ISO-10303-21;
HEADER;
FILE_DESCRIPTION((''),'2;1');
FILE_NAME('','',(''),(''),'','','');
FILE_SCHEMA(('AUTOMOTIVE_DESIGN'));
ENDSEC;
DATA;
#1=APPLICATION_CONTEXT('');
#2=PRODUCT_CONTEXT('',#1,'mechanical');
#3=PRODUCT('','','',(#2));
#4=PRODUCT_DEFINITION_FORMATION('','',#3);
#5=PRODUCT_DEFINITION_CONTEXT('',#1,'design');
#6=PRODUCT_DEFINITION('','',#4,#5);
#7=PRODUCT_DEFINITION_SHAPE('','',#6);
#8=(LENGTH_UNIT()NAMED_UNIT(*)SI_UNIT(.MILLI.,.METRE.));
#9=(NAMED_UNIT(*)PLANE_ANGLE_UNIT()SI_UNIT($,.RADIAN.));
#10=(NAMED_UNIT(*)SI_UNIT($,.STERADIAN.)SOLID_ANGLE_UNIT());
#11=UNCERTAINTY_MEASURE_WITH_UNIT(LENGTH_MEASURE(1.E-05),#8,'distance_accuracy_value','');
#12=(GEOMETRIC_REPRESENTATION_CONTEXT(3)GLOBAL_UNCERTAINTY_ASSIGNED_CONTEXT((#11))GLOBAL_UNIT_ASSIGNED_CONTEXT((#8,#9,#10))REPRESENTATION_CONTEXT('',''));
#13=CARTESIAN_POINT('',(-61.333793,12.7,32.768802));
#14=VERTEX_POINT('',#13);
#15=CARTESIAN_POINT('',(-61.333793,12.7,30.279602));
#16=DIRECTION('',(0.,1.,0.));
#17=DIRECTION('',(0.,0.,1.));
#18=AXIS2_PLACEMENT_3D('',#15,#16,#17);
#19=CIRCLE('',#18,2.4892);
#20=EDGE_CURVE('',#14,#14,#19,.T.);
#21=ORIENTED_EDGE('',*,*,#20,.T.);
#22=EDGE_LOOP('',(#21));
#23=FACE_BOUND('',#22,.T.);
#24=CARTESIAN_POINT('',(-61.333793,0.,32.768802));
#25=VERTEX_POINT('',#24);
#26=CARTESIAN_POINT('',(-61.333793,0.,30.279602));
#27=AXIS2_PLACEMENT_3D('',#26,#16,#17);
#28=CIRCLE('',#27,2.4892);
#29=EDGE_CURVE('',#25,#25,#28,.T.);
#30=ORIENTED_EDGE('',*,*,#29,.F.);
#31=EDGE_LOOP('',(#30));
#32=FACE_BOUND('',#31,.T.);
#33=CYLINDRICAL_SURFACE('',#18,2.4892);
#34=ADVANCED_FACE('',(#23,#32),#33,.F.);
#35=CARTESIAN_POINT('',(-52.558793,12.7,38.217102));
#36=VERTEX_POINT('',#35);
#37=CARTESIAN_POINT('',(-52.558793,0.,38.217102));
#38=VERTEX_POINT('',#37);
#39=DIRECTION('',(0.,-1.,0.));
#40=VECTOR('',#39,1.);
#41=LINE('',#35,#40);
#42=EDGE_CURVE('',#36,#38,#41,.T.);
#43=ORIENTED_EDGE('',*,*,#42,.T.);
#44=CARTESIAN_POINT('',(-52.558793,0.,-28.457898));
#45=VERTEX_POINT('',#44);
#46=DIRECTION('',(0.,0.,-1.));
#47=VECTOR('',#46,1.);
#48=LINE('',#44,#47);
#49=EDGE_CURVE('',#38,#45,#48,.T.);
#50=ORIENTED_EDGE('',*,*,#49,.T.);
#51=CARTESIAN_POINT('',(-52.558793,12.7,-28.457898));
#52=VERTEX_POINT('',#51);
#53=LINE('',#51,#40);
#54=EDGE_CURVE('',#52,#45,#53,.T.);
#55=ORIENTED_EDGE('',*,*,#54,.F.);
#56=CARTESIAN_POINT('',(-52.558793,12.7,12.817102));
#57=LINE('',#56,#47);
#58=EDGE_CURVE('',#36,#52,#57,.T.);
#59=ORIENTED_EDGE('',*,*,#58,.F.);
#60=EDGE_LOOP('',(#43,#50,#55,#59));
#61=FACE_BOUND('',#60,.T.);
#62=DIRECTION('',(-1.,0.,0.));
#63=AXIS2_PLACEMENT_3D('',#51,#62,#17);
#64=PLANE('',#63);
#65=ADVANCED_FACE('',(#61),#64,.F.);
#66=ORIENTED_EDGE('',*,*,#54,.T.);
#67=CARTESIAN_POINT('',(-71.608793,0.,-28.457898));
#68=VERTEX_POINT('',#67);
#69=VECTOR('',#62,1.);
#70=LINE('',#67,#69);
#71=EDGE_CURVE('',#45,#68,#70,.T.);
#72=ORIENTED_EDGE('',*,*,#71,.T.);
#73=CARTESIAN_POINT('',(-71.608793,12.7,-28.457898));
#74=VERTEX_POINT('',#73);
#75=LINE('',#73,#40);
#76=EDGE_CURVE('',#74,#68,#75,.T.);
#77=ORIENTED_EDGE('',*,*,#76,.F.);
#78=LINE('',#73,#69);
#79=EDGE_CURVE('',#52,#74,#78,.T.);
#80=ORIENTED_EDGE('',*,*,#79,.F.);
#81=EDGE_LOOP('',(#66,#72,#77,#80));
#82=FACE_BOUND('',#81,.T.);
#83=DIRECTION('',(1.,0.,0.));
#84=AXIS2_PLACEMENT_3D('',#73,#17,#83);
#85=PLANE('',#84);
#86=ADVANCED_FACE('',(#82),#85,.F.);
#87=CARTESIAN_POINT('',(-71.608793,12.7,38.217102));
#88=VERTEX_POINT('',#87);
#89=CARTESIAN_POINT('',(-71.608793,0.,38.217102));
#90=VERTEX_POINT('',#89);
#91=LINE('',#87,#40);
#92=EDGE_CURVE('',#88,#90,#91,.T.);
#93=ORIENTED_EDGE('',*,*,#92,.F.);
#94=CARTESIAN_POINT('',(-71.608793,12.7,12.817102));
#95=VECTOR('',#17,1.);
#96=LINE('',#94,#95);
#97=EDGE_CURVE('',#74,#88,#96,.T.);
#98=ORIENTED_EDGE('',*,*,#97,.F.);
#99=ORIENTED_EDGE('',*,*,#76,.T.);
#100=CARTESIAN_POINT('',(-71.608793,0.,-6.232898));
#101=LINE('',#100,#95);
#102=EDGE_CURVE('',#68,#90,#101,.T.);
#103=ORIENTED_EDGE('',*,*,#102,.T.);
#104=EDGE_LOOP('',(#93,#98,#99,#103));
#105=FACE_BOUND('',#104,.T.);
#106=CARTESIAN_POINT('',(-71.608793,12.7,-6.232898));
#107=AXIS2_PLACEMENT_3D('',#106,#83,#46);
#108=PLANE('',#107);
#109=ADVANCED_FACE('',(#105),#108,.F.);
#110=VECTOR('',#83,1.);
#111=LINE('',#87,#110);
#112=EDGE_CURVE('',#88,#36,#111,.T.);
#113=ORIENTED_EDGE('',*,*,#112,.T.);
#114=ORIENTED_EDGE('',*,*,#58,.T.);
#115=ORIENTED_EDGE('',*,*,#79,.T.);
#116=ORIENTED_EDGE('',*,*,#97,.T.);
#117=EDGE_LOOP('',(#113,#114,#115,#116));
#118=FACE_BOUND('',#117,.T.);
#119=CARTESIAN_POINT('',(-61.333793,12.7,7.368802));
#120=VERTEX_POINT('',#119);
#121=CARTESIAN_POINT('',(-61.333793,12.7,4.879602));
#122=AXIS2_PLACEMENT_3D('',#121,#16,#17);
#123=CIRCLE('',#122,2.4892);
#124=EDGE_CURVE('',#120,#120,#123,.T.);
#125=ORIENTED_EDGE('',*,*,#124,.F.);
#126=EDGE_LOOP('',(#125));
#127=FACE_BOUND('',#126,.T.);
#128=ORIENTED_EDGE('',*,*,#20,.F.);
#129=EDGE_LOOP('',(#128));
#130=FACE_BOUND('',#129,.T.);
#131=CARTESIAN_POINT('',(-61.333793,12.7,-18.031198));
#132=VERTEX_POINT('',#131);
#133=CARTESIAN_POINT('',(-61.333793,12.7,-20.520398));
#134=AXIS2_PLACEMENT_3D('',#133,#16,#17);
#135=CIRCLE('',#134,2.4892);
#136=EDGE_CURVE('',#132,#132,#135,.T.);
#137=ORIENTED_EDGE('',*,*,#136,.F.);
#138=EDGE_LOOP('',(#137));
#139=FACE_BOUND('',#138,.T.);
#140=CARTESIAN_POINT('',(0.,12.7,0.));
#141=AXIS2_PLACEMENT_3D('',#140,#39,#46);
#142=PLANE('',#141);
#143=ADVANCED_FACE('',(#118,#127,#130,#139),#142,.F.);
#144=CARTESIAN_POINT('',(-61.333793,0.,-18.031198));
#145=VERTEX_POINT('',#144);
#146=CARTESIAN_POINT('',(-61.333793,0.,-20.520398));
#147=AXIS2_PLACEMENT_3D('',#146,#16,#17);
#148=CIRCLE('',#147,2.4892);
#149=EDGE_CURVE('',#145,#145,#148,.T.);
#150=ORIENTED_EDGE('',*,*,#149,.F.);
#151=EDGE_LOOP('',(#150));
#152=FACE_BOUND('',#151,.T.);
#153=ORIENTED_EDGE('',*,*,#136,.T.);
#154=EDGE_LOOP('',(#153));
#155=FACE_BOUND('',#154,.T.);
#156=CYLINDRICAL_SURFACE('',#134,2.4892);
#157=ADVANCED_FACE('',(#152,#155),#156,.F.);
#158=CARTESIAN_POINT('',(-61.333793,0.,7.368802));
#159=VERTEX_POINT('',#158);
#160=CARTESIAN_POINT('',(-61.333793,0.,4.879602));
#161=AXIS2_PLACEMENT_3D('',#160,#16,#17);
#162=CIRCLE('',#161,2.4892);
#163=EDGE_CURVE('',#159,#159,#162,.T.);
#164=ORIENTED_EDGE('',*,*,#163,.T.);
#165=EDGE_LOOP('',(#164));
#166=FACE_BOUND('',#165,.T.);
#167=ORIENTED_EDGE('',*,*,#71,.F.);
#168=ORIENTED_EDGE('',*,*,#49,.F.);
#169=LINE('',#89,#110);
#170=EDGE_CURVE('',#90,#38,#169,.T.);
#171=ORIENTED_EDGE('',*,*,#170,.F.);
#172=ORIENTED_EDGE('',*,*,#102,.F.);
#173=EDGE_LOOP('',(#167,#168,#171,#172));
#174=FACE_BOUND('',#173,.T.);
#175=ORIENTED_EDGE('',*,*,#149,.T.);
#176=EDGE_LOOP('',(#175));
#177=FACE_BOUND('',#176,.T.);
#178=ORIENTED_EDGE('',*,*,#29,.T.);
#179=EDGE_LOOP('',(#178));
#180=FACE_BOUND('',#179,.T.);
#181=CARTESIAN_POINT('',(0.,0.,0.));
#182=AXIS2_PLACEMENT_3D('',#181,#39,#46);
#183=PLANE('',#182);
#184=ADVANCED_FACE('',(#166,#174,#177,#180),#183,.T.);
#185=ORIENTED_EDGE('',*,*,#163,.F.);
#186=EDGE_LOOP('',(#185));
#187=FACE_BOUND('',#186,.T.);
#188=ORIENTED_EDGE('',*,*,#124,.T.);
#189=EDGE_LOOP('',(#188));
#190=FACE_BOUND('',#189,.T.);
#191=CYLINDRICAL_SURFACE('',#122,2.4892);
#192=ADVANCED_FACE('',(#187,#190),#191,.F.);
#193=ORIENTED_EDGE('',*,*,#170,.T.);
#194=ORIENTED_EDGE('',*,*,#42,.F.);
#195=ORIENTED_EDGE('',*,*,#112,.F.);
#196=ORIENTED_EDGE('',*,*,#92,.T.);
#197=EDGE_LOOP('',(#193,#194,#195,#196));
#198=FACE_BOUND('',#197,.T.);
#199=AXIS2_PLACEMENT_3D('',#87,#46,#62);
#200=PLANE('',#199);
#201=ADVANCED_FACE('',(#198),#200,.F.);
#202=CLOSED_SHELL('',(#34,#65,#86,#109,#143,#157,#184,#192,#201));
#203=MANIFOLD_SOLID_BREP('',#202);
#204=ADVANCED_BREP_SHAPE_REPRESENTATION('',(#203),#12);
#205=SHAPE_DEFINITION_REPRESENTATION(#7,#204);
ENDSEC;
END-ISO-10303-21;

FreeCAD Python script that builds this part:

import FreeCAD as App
import Part
import Sketcher

V = App.Vector
Q = App.Units.Quantity

doc = App.newDocument("Part")
body = doc.addObject("PartDesign::Body", "Body")

# Sketch on XZ plane
sketch1 = body.newObject("Sketcher::SketchObject", "Sketch")
sketch1.AttachmentSupport = (doc.getObject("XZ_Plane"), [""])
sketch1.MapMode = "FlatFace"
sketch1.addGeometry([
    Part.LineSegment(V(-72, -28, 0), V(-72, 38, 0)),
    Part.LineSegment(V(-72, 38, 0), V(-53, 38, 0)),
    Part.LineSegment(V(-53, 38, 0), V(-53, -28, 0)),
    Part.LineSegment(V(-53, -28, 0), V(-72, -28, 0)),
], False)
sketch1.addConstraint([
    Sketcher.Constraint("Coincident", 0, 2, 1, 1),
    Sketcher.Constraint("Coincident", 1, 2, 2, 1),
    Sketcher.Constraint("Coincident", 2, 2, 3, 1),
    Sketcher.Constraint("Coincident", 3, 2, 0, 1),
    Sketcher.Constraint("Vertical", 0),
    Sketcher.Constraint("Horizontal", 1),
    Sketcher.Constraint("Vertical", 2),
    Sketcher.Constraint("Horizontal", 3),
    Sketcher.Constraint("DistanceX", 1, 1, 1, 2, Q("0.75 in")),
    Sketcher.Constraint("DistanceY", 0, 1, 0, 2, Q("2.625 in")),
    Sketcher.Constraint("DistanceY", -1, 1, 0, 2, 38.217102),
    Sketcher.Constraint("DistanceX", 0, 2, -1, 1, 71.608793),
])
pad1 = body.newObject("PartDesign::Pad", "Pad")
pad1.Profile = sketch1
pad1.Length = Q("0.5 in")
pad1.Reversed = True

# Sketch on XZ plane
sketch2 = body.newObject("Sketcher::SketchObject", "Sketch001")
sketch2.AttachmentSupport = (doc.getObject("XZ_Plane"), [""])
sketch2.MapMode = "FlatFace"
sketch2.AttachmentOffset = App.Placement(V(0, 0, -0.5 * 25.4), App.Rotation())
sketch2.addGeometry([
    Part.Circle(V(-61.3, -20.5, 0), V(0, 0, 1), 2.5),
    Part.Circle(V(-61.3, 4.9, 0), V(0, 0, 1), 2.5),
    Part.Circle(V(-61.3, 30.3, 0), V(0, 0, 1), 2.5),
], False)
sketch2.addConstraint([
    Sketcher.Constraint("Equal", 0, 1),
    Sketcher.Constraint("Equal", 1, 2),
    Sketcher.Constraint("Vertical", 0, 3, 1, 3),
    Sketcher.Constraint("Vertical", 1, 3, 2, 3),
    Sketcher.Constraint("Diameter", 0, Q("0.196 in")),
    Sketcher.Constraint("DistanceY", 0, 3, 1, 3, Q("1 in")),
    Sketcher.Constraint("DistanceY", 1, 3, 2, 3, Q("1 in")),
    Sketcher.Constraint("DistanceY", 0, 3, -1, 1, 20.520398),
    Sketcher.Constraint("DistanceX", 0, 3, -1, 1, 61.333793),
])
doc.recompute()
hole = body.newObject("PartDesign::Hole", "Hole")
hole.Profile = sketch2
hole.ThreadType = "None"
hole.Diameter = Q("0.196 in")
hole.DepthType = "ThroughAll"
hole.Reversed = True

doc.recompute()
